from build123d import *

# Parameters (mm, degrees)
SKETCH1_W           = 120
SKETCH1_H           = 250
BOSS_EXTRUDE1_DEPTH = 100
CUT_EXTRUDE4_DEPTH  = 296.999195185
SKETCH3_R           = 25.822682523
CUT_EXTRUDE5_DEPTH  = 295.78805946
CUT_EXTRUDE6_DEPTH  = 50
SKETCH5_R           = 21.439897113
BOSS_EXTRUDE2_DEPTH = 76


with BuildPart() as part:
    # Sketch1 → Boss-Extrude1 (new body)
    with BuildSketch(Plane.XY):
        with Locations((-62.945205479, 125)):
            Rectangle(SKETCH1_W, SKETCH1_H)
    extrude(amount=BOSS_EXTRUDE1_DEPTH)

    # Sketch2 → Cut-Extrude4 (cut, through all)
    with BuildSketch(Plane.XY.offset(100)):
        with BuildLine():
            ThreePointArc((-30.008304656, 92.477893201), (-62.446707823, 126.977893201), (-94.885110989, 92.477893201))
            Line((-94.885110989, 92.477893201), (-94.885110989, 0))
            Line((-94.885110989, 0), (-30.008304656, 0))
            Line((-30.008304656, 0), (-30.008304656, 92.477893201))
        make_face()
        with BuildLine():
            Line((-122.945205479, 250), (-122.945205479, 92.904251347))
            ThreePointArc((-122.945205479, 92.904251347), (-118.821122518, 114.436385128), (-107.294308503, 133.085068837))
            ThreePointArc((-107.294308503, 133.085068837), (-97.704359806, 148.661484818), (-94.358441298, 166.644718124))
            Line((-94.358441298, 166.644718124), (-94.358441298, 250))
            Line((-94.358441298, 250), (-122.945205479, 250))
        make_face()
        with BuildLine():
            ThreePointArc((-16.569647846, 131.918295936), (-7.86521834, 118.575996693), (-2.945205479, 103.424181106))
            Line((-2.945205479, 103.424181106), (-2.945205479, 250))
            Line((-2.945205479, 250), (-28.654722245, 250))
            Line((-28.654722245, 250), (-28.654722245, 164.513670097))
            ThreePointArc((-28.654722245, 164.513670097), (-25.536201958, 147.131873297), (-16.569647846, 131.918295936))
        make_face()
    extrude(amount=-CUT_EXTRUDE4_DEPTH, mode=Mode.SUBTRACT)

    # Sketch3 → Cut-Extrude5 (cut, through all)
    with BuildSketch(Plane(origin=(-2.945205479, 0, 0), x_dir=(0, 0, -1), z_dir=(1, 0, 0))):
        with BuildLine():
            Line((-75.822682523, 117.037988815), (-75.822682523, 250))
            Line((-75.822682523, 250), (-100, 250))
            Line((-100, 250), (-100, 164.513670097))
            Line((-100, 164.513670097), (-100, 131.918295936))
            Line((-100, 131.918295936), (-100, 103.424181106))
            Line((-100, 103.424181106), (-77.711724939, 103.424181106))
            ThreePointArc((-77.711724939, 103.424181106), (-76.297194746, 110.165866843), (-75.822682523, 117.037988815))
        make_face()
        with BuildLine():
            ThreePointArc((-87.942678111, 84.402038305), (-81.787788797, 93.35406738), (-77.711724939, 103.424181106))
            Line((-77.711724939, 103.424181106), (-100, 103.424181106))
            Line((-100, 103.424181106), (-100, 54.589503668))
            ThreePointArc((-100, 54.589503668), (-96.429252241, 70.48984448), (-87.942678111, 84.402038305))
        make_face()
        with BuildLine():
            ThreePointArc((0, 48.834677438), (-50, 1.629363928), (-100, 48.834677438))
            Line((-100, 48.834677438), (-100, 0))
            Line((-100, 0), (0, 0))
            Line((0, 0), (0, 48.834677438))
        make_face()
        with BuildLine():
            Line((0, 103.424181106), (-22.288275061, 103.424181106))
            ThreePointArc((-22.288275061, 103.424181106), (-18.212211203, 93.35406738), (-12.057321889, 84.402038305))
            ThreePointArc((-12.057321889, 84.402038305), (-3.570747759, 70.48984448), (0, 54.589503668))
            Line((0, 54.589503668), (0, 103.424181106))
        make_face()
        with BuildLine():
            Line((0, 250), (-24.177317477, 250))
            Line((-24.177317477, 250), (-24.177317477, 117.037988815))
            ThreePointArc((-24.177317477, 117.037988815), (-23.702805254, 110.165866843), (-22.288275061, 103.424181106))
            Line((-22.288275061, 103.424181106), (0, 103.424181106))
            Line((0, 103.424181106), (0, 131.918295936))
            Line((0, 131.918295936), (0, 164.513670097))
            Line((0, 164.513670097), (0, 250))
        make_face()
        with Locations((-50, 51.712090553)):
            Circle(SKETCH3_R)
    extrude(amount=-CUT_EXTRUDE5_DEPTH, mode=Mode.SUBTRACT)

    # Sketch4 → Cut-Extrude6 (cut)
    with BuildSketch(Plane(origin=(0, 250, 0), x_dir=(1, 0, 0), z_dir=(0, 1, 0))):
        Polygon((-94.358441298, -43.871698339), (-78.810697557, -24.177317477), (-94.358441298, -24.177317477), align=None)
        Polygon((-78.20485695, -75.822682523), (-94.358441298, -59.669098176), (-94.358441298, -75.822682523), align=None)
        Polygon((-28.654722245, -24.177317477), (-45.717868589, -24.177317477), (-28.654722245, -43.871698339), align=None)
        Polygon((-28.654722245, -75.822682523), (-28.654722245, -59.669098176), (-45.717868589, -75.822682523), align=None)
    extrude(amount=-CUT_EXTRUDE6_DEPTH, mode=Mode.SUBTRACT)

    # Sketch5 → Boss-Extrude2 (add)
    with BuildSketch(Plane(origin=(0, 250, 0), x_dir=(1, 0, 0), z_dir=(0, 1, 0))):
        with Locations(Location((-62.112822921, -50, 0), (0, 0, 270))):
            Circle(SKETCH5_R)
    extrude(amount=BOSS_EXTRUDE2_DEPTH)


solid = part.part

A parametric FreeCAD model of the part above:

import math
import FreeCAD as App
import Part
import Sketcher

V = App.Vector
Q = App.Units.Quantity


def add_polygon(sketch, points):
    """Adds a closed chain of lines whose ends are joined by coincident constraints."""
    first, n = sketch.GeometryCount, len(points)
    for a, b in zip(points, points[1:] + points[:1]):
        sketch.addGeometry(Part.LineSegment(App.Vector(*a, 0), App.Vector(*b, 0)), False)
    for i in range(n):
        sketch.addConstraint(Sketcher.Constraint("Coincident", first + i, 2, first + (i + 1) % n, 1))

doc = App.newDocument("Part")
body = doc.addObject("PartDesign::Body", "Body")

# Sketch on XY plane
sketch1 = body.newObject("Sketcher::SketchObject", "Sketch")
sketch1.AttachmentSupport = (doc.getObject("XY_Plane"), [""])
sketch1.MapMode = "FlatFace"
add_polygon(sketch1, [(-123, 250), (-123, 0), (-3, 0), (-3, 250)])  # lines 0-3
sketch1.addConstraint([
    Sketcher.Constraint("Vertical", 0),
    Sketcher.Constraint("Horizontal", 1),
    Sketcher.Constraint("Vertical", 2),
    Sketcher.Constraint("Horizontal", 3),
    Sketcher.Constraint("PointOnObject", 0, 2, -1),
    Sketcher.Constraint("DistanceX", 1, 1, 1, 2, Q("120 mm")),
    Sketcher.Constraint("DistanceY", 0, 2, 0, 1, Q("250 mm")),
    Sketcher.Constraint("DistanceX", 0, 2, -1, 1, Q("122.945205 mm")),
])
pad1 = body.newObject("PartDesign::Pad", "Pad")
pad1.Profile = sketch1
pad1.Length = 100

# Sketch on XY plane
sketch2 = body.newObject("Sketcher::SketchObject", "Sketch001")
sketch2.AttachmentSupport = (doc.getObject("XY_Plane"), [""])
sketch2.MapMode = "FlatFace"
sketch2.AttachmentOffset = App.Placement(V(0, 0, 100), App.Rotation())
sketch2.addGeometry([
    Part.ArcOfCircle(Part.Circle(V(-62, 94, 0), V(0, 0, 1), 32), math.radians(-4), math.radians(184)),  # 0
    Part.LineSegment(V(-95, 92, 0), V(-95, 0, 0)),  # 1
    Part.LineSegment(V(-95, 0, 0), V(-30, 0, 0)),  # 2
    Part.LineSegment(V(-30, 0, 0), V(-30, 92, 0)),  # 3
    Part.LineSegment(V(-123, 250, 0), V(-123, 93, 0)),  # 4
    Part.ArcOfCircle(Part.Circle(V(-62, 92, 0), V(0, 0, 1), 60), math.radians(138), math.radians(180)),  # 5
    Part.ArcOfCircle(Part.Circle(V(-144, 167, 0), V(0, 0, 1), 50), math.radians(-42), math.radians(0)),  # 6
    Part.LineSegment(V(-94, 167, 0), V(-94, 250, 0)),  # 7
    Part.LineSegment(V(-94, 250, 0), V(-123, 250, 0)),  # 8
    Part.ArcOfCircle(Part.Circle(V(-62, 92, 0), V(0, 0, 1), 61), math.radians(10), math.radians(41)),  # 9
    Part.LineSegment(V(-3, 103, 0), V(-3, 250, 0)),  # 10
    Part.LineSegment(V(-3, 250, 0), V(-29, 250, 0)),  # 11
    Part.LineSegment(V(-29, 250, 0), V(-29, 165, 0)),  # 12
    Part.ArcOfCircle(Part.Circle(V(21, 165, 0), V(0, 0, 1), 50), math.radians(180), math.radians(221)),  # 13
], False)
sketch2.addConstraint([
    Sketcher.Constraint("Coincident", 0, 2, 1, 1),
    Sketcher.Constraint("Coincident", 1, 2, 2, 1),
    Sketcher.Constraint("Coincident", 2, 2, 3, 1),
    Sketcher.Constraint("Coincident", 3, 2, 0, 1),
    Sketcher.Constraint("Coincident", 4, 2, 5, 2),
    Sketcher.Constraint("Tangent", 5, 1, 6, 1),
    Sketcher.Constraint("Tangent", 6, 2, 7, 1),
    Sketcher.Constraint("Coincident", 7, 2, 8, 1),
    Sketcher.Constraint("Coincident", 8, 2, 4, 1),
    Sketcher.Constraint("Coincident", 9, 1, 10, 1),
    Sketcher.Constraint("Coincident", 10, 2, 11, 1),
    Sketcher.Constraint("Coincident", 11, 2, 12, 1),
    Sketcher.Constraint("Tangent", 12, 2, 13, 1),
    Sketcher.Constraint("Tangent", 13, 2, 9, 2),
    Sketcher.Constraint("Vertical", 1),
    Sketcher.Constraint("Horizontal", 2),
    Sketcher.Constraint("Vertical", 3),
    Sketcher.Constraint("Vertical", 4),
    Sketcher.Constraint("Vertical", 7),
    Sketcher.Constraint("Horizontal", 8),
    Sketcher.Constraint("Vertical", 10),
    Sketcher.Constraint("Horizontal", 11),
    Sketcher.Constraint("Vertical", 12),
    Sketcher.Constraint("Coincident", 9, 3, 5, 3),
    Sketcher.Constraint("Equal", 5, 9),
    Sketcher.Constraint("Equal", 6, 13),
    Sketcher.Constraint("PointOnObject", 1, 2, -1),
    Sketcher.Constraint("Horizontal", 9, 3, 0, 2),
    Sketcher.Constraint("Horizontal", 0, 2, 3, 2),
    Sketcher.Constraint("Horizontal", 8, 2, 10, 2),
    Sketcher.Constraint("Vertical", 0, 3, 5, 3),
    Sketcher.Constraint("Radius", 6, Q("50 mm")),
    Sketcher.Constraint("Radius", 0, Q("32.5 mm")),
    Sketcher.Constraint("Radius", 5, Q("60.5 mm")),
    Sketcher.Constraint("DistanceY", -1, 1, 7, 2, Q("250 mm")),
    Sketcher.Constraint("DistanceY", 5, 3, 0, 3, Q("2 mm")),
    Sketcher.Constraint("DistanceX", 8, 2, 10, 2, Q("120 mm")),
    Sketcher.Constraint("DistanceY", 4, 2, 4, 1, Q("157.095749 mm")),
    Sketcher.Constraint("DistanceY", 7, 1, 7, 2, Q("83.355282 mm")),
    Sketcher.Constraint("DistanceY", 10, 1, 10, 2, Q("146.575819 mm")),
    Sketcher.Constraint("DistanceY", 12, 2, 12, 1, Q("85.48633 mm")),
    Sketcher.Constraint("DistanceX", 6, 3, -1, 1, Q("144.358441 mm")),
])
pocket1 = body.newObject("PartDesign::Pocket", "Pocket")
pocket1.Profile = sketch2
pocket1.Type = "ThroughAll"

# Sketch on YZ plane
sketch3 = body.newObject("Sketcher::SketchObject", "Sketch002")
sketch3.AttachmentSupport = (doc.getObject("YZ_Plane"), [""])
sketch3.MapMode = "FlatFace"
sketch3.AttachmentOffset = App.Placement(V(0, 0, -2.945205), App.Rotation())
sketch3.addGeometry([
    Part.LineSegment(V(117, 76, 0), V(250, 76, 0)),  # 0
    Part.LineSegment(V(250, 76, 0), V(250, 100, 0)),  # 1
    Part.LineSegment(V(250, 100, 0), V(55, 100, 0)),  # 2
    Part.ArcOfCircle(Part.Circle(V(52, 50, 0), V(0, 0, 1), 50), math.radians(49), math.radians(87)),  # 3
    Part.ArcOfCircle(Part.Circle(V(117, 126, 0), V(0, 0, 1), 50), math.radians(-131), math.radians(-106)),  # 4
    Part.ArcOfCircle(Part.Circle(V(117, 126, 0), V(0, 0, 1), 50), math.radians(-105.8), math.radians(-90)),  # 5
    Part.ArcOfCircle(Part.Circle(V(52, 50, 0), V(0, 0, 1), 50), math.radians(93), math.radians(267)),  # 6
    Part.LineSegment(V(49, 100, 0), V(0, 100, 0)),  # 7
    Part.LineSegment(V(0, 100, 0), V(0, 0, 0)),  # 8
    Part.LineSegment(V(0, 0, 0), V(49, 0, 0)),  # 9
    Part.ArcOfCircle(Part.Circle(V(117, -26, 0), V(0, 0, 1), 50), math.radians(106), math.radians(131)),  # 10
    Part.ArcOfCircle(Part.Circle(V(52, 50, 0), V(0, 0, 1), 50), math.radians(-87), math.radians(-49)),  # 11
    Part.LineSegment(V(55, 0, 0), V(250, 0, 0)),  # 12
    Part.LineSegment(V(250, 0, 0), V(250, 24, 0)),  # 13
    Part.LineSegment(V(250, 24, 0), V(117, 24, 0)),  # 14
    Part.ArcOfCircle(Part.Circle(V(117, -26, 0), V(0, 0, 1), 50), math.radians(90), math.radians(105.8)),  # 15
    Part.Circle(V(52, 50, 0), V(0, 0, 1), 26),  # 16
], False)
sketch3.addConstraint([
    Sketcher.Constraint("Coincident", 0, 2, 1, 1),
    Sketcher.Constraint("Coincident", 1, 2, 2, 1),
    Sketcher.Constraint("Coincident", 2, 2, 3, 2),
    Sketcher.Constraint("Tangent", 3, 1, 4, 1),
    Sketcher.Constraint("Tangent", 4, 2, 5, 1),
    Sketcher.Constraint("Tangent", 5, 2, 0, 1),
    Sketcher.Constraint("Coincident", 6, 1, 7, 1),
    Sketcher.Constraint("Coincident", 7, 2, 8, 1),
    Sketcher.Constraint("Coincident", 8, 2, 9, 1),
    Sketcher.Constraint("Coincident", 9, 2, 6, 2),
    Sketcher.Constraint("Tangent", 10, 2, 11, 2),
    Sketcher.Constraint("Coincident", 11, 1, 12, 1),
    Sketcher.Constraint("Coincident", 12, 2, 13, 1),
    Sketcher.Constraint("Coincident", 13, 2, 14, 1),
    Sketcher.Constraint("Tangent", 14, 2, 15, 1),
    Sketcher.Constraint("Tangent", 15, 2, 10, 1),
    Sketcher.Constraint("Horizontal", 0),
    Sketcher.Constraint("Vertical", 1),
    Sketcher.Constraint("Horizontal", 2),
    Sketcher.Constraint("Horizontal", 7),
    Sketcher.Constraint("Vertical", 8),
    Sketcher.Constraint("Horizontal", 9),
    Sketcher.Constraint("Horizontal", 12),
    Sketcher.Constraint("Vertical", 13),
    Sketcher.Constraint("Horizontal", 14),
    Sketcher.Constraint("Coincident", 8, 2, -1, 1),
    Sketcher.Constraint("Coincident", 6, 3, 3, 3),
    Sketcher.Constraint("Coincident", 11, 3, 3, 3),
    Sketcher.Constraint("Coincident", 16, 3, 3, 3),
    Sketcher.Constraint("Equal", 4, 5),
    Sketcher.Constraint("Equal", 3, 6),
    Sketcher.Constraint("Equal", 5, 10),
    Sketcher.Constraint("Equal", 6, 11),
    Sketcher.Constraint("Equal", 10, 15),
    Sketcher.Constraint("PointOnObject", 11, 1, -1),
    Sketcher.Constraint("Horizontal", 2, 2, 6, 1),
    Sketcher.Constraint("Vertical", 5, 3, 10, 3),
    Sketcher.Constraint("Vertical", 6, 1, 9, 2),
    Sketcher.Constraint("Vertical", 1, 2, 12, 2),
    Sketcher.Constraint("Vertical", 4, 2, 15, 2),
    Sketcher.Constraint("Radius", 4, Q("50 mm")),
    Sketcher.Constraint("DistanceY", 8, 2, 8, 1, Q("100 mm")),
    Sketcher.Constraint("DistanceX", -1, 1, 0, 2, Q("250 mm")),
    Sketcher.Constraint("Diameter", 16, Q("51.645365 mm")),
    Sketcher.Constraint("Radius", 3, Q("50.082727 mm")),
    Sketcher.Constraint("DistanceX", 0, 1, 0, 2, Q("132.962011 mm")),
    Sketcher.Constraint("DistanceX", 3, 3, 4, 3, Q("65.325898 mm")),
    Sketcher.Constraint("DistanceX", -1, 1, 4, 2, Q("103.424181 mm")),
])
pocket2 = body.newObject("PartDesign::Pocket", "Pocket001")
pocket2.Profile = sketch3
pocket2.Type = "ThroughAll"

# Sketch on XZ plane
sketch4 = body.newObject("Sketcher::SketchObject", "Sketch003")
sketch4.AttachmentSupport = (doc.getObject("XZ_Plane"), [""])
sketch4.MapMode = "FlatFace"
sketch4.AttachmentOffset = App.Placement(V(0, 0, -250), App.Rotation())
add_polygon(sketch4, [(-94, 44), (-79, 24), (-94, 24)])  # lines 0-2
add_polygon(sketch4, [(-78, 76), (-94, 60), (-94, 76)])  # lines 3-5
add_polygon(sketch4, [(-29, 24), (-46, 24), (-29, 44)])  # lines 6-8
add_polygon(sketch4, [(-29, 76), (-29, 60), (-46, 76)])  # lines 9-11
sketch4.addConstraint([
    Sketcher.Constraint("Horizontal", 1),
    Sketcher.Constraint("Vertical", 2),
    Sketcher.Constraint("Vertical", 4),
    Sketcher.Constraint("Horizontal", 5),
    Sketcher.Constraint("Horizontal", 6),
    Sketcher.Constraint("Vertical", 8),
    Sketcher.Constraint("Vertical", 9),
    Sketcher.Constraint("Horizontal", 11),
    Sketcher.Constraint("Horizontal", 1, 2, 6, 2),
    Sketcher.Constraint("Horizontal", 2, 2, 7, 2),
    Sketcher.Constraint("Horizontal", 3, 2, 9, 2),
    Sketcher.Constraint("Horizontal", 5, 2, 10, 2),
    Sketcher.Constraint("Vertical", 2, 2, 3, 2),
    Sketcher.Constraint("Vertical", 8, 2, 9, 2),
    Sketcher.Constraint("Vertical", 6, 2, 10, 2),
    Sketcher.Constraint("Equal", 5, 4),
    Sketcher.Constraint("DistanceY", 2, 1, 2, 2, Q("19.694381 mm")),
    Sketcher.Constraint("DistanceY", -1, 1, 2, 2, Q("43.871698 mm")),
    Sketcher.Constraint("DistanceY", -1, 1, 3, 2, Q("59.669098 mm")),
    Sketcher.Constraint("Distance", 0, Q("25.091851 mm")),
    Sketcher.Constraint("Distance", 3, Q("22.844618 mm")),
    Sketcher.Constraint("Distance", 10, Q("23.49658 mm")),
    Sketcher.Constraint("DistanceX", 1, 2, -1, 1, Q("94.358441 mm")),
    Sketcher.Constraint("DistanceX", 6, 2, -1, 1, Q("45.717869 mm")),
])
pocket3 = body.newObject("PartDesign::Pocket", "Pocket002")
pocket3.Profile = sketch4
pocket3.Length = 50
pocket3.Reversed = True

# Sketch on XZ plane
sketch5 = body.newObject("Sketcher::SketchObject", "Sketch004")
sketch5.AttachmentSupport = (doc.getObject("XZ_Plane"), [""])
sketch5.MapMode = "FlatFace"
sketch5.AttachmentOffset = App.Placement(V(0, 0, -250), App.Rotation())
sketch5.addGeometry(Part.Circle(V(-62, 50, 0), V(0, 0, 1), 21), False)
sketch5.addConstraint([
    Sketcher.Constraint("DistanceY", -1, 1, 0, 3, Q("50 mm")),
    Sketcher.Constraint("Diameter", 0, Q("42.879794 mm")),
    Sketcher.Constraint("DistanceX", 0, 3, -1, 1, Q("62.112823 mm")),
])
pad2 = body.newObject("PartDesign::Pad", "Pad001")
pad2.Profile = sketch5
pad2.Length = 76
pad2.Reversed = True

doc.recompute()
